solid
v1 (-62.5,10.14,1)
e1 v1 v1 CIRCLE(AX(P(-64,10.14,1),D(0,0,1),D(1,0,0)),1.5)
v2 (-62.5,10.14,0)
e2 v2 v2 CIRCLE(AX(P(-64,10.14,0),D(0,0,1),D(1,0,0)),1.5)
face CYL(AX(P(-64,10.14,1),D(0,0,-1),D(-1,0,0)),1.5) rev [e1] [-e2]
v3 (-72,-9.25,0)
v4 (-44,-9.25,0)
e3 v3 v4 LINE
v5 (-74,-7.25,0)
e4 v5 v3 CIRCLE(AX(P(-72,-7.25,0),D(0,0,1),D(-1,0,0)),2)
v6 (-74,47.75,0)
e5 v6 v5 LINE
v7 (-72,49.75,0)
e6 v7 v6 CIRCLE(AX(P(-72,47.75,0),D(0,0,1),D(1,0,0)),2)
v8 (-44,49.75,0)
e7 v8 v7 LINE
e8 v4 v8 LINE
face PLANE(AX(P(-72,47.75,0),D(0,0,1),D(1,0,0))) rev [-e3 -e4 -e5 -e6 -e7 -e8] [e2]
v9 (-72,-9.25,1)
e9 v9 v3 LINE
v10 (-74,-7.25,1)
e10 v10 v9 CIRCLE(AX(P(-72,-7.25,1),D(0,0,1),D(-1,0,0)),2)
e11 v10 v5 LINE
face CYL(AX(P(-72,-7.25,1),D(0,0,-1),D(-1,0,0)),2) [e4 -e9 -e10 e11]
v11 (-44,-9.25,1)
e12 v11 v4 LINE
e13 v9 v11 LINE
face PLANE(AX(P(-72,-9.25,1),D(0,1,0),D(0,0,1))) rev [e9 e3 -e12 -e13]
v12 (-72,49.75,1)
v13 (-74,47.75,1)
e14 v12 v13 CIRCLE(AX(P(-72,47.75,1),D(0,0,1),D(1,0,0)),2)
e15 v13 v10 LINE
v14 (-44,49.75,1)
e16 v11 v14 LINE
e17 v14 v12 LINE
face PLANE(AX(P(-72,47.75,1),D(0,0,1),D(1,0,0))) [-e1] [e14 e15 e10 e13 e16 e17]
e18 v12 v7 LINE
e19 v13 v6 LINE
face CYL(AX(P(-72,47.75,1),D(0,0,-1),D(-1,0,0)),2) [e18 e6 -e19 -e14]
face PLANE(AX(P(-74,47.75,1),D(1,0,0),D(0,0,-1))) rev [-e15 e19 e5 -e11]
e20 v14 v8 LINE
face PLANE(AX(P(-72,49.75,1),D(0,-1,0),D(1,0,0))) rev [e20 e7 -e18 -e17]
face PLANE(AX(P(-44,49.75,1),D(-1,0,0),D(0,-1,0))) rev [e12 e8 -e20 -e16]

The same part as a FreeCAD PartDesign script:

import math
import FreeCAD as App
import Part
import Sketcher
from FreeCAD import Vector

doc = App.newDocument("Part")
body = doc.addObject("PartDesign::Body", "Body")

# Sketch on XY plane
sketch1 = body.newObject("Sketcher::SketchObject", "Sketch")
sketch1.AttachmentSupport = (doc.getObject("XY_Plane"), [""])
sketch1.MapMode = "FlatFace"
sketch1.addGeometry([
    Part.LineSegment(Vector(-44, -9.2, 0), Vector(-44, 49.8, 0)),  # 0
    Part.LineSegment(Vector(-44, 49.8, 0), Vector(-72, 49.8, 0)),  # 1
    Part.ArcOfCircle(Part.Circle(Vector(-72, 47.7, 0), Vector(0, 0, 1), 2), math.radians(90), math.radians(180)),  # 2
    Part.LineSegment(Vector(-74, 47.8, 0), Vector(-74, -7.2, 0)),  # 3
    Part.ArcOfCircle(Part.Circle(Vector(-72, -7.2, 0), Vector(0, 0, 1), 2), math.radians(-180), math.radians(-90)),  # 4
    Part.LineSegment(Vector(-72, -9.2, 0), Vector(-44, -9.2, 0)),  # 5
    Part.Circle(Vector(-64, 10.1, 0), Vector(0, 0, 1), 1.5),  # 6
], False)
sketch1.addConstraint([
    Sketcher.Constraint("Coincident", 0, 2, 1, 1),
    Sketcher.Constraint("Tangent", 1, 2, 2, 1),
    Sketcher.Constraint("Tangent", 2, 2, 3, 1),
    Sketcher.Constraint("Tangent", 3, 2, 4, 1),
    Sketcher.Constraint("Tangent", 4, 2, 5, 1),
    Sketcher.Constraint("Coincident", 5, 2, 0, 1),
    Sketcher.Constraint("Vertical", 0),
    Sketcher.Constraint("Horizontal", 1),
    Sketcher.Constraint("Vertical", 3),
    Sketcher.Constraint("Horizontal", 5),
    Sketcher.Constraint("Equal", 2, 4),
    Sketcher.Constraint("Diameter", 6, 3.0),
    Sketcher.Constraint("Radius", 2, 2.0),
    Sketcher.Constraint("DistanceX", 1, 2, 1, 1, 28.0),
    Sketcher.Constraint("DistanceY", 0, 1, 0, 2, 59.0),
    Sketcher.Constraint("DistanceX", 2, 3, -1, 1, 72.0),
    Sketcher.Constraint("DistanceX", 6, 3, -1, 1, 64.0),
    Sketcher.Constraint("DistanceY", -1, 1, 2, 3, 47.75),
    Sketcher.Constraint("DistanceY", -1, 1, 6, 3, 10.14),
])
pad1 = body.newObject("PartDesign::Pad", "Pad")
pad1.Profile = sketch1
pad1.Length = 1

doc.recompute()
